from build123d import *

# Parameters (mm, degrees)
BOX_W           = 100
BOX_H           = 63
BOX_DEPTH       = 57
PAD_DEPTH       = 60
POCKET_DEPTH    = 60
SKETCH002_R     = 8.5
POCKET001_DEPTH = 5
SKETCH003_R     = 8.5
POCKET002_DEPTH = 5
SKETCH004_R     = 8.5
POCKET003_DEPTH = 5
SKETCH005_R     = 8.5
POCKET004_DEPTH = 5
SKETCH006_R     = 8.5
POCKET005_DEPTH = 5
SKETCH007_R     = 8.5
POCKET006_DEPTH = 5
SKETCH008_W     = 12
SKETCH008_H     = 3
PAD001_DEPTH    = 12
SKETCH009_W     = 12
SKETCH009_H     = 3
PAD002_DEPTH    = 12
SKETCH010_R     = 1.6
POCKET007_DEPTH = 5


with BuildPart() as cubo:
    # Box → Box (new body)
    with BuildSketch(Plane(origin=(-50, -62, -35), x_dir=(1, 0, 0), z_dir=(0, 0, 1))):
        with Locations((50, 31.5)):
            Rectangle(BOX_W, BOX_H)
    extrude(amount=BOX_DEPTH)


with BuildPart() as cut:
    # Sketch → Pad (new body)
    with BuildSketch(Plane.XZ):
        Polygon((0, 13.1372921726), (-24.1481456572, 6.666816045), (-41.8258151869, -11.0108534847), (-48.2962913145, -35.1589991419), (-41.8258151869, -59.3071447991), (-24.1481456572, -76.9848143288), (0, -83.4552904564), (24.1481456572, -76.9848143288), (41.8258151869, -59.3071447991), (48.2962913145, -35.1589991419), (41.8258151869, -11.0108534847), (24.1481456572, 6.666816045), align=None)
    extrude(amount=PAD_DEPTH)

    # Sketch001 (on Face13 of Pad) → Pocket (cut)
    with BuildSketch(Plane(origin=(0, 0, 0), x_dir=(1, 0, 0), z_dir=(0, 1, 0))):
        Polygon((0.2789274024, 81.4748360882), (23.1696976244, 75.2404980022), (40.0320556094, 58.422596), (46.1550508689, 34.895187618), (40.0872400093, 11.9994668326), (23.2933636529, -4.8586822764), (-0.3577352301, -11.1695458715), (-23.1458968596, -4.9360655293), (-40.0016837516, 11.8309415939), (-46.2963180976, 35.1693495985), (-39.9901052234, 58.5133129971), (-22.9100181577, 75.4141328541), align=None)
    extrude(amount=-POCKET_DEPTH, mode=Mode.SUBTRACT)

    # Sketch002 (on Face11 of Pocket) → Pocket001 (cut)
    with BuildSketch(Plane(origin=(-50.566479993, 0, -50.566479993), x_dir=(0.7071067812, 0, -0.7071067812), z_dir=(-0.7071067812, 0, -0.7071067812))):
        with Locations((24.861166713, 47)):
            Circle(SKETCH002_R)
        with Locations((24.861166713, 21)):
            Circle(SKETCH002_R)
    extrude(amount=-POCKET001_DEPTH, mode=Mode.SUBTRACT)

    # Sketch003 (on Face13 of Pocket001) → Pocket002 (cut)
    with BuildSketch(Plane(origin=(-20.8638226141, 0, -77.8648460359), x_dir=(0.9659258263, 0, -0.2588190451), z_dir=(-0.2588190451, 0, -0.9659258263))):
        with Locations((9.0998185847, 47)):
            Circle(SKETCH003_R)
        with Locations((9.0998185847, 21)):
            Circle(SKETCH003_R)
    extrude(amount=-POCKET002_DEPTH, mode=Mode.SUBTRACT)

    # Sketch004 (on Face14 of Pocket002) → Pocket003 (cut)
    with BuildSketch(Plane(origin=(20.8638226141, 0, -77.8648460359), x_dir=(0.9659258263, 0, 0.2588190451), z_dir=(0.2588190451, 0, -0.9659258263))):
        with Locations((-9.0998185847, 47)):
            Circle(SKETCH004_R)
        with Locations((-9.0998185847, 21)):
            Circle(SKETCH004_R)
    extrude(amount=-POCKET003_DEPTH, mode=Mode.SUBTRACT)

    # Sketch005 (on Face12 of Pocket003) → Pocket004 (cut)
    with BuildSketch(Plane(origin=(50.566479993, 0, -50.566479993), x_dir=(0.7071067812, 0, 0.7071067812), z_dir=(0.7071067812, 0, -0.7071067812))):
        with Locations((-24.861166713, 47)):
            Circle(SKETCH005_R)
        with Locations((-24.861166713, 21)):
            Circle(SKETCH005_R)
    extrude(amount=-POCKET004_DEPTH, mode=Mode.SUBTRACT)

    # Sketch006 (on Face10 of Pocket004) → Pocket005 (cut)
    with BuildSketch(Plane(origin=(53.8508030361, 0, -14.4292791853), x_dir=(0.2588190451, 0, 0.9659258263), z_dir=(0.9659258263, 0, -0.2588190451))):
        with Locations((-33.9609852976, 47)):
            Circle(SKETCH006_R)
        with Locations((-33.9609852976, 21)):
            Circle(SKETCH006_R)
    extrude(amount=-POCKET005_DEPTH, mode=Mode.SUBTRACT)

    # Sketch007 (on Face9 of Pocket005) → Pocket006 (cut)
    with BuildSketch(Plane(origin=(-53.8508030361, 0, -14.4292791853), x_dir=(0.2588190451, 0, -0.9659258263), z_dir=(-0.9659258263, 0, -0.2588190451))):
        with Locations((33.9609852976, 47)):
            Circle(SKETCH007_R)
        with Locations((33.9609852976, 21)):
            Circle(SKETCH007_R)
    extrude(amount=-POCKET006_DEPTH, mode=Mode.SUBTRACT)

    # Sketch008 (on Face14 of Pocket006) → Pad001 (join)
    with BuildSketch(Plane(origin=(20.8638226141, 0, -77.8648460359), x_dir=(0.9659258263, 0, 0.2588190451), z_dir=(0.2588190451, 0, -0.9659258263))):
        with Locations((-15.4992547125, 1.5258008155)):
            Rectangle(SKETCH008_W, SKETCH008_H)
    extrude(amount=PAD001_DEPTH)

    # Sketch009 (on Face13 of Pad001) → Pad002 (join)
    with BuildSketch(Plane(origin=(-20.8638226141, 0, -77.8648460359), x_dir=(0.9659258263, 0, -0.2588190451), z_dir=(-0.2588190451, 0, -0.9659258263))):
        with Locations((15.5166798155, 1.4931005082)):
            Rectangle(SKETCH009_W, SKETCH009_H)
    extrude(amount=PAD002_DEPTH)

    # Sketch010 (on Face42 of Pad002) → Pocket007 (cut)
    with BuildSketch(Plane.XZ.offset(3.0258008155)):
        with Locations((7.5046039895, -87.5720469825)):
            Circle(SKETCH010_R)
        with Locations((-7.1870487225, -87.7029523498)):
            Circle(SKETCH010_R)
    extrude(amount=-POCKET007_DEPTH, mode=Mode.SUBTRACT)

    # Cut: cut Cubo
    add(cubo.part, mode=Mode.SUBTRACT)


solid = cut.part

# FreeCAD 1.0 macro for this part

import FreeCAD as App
import Part
import Sketcher
from FreeCAD import Vector
Q = App.Units.Quantity


def add_polygon(sketch, points):
    """Adds a closed chain of lines whose ends are joined by coincident constraints."""
    first, n = sketch.GeometryCount, len(points)
    for a, b in zip(points, points[1:] + points[:1]):
        sketch.addGeometry(Part.LineSegment(App.Vector(*a, 0), App.Vector(*b, 0)), False)
    for i in range(n):
        sketch.addConstraint(Sketcher.Constraint("Coincident", first + i, 2, first + (i + 1) % n, 1))

doc = App.newDocument("Part")
params = doc.addObject("Spreadsheet::Sheet", "Params")
for row, (alias, value) in enumerate([
    ("sketch1_width", "100 mm"),
    ("sketch1_height", "63 mm"),
    ("pad1_length", "57 mm"),
    ("sketch2_length", "25 mm"),
    ("pad2_length", "60 mm"),
    ("pocket1_length", "60 mm"),
    ("sketch4_diameter", "17 mm"),
    ("pocket2_length", "5 mm"),
    ("sketch5_diameter", "17 mm"),
    ("pocket3_length", "5 mm"),
    ("sketch6_diameter", "17 mm"),
    ("pocket4_length", "5 mm"),
    ("sketch7_diameter", "17 mm"),
    ("pocket5_length", "5 mm"),
    ("sketch8_diameter", "17 mm"),
    ("pocket6_length", "5 mm"),
    ("sketch9_diameter", "17 mm"),
    ("pocket7_length", "5 mm"),
    ("sketch10_width", "12 mm"),
    ("sketch10_height", "3 mm"),
    ("pad3_length", "12 mm"),
    ("sketch11_width", "12 mm"),
    ("sketch11_height", "3 mm"),
    ("pad4_length", "12 mm"),
    ("sketch12_diameter", "3.2 mm"),
    ("pocket8_length", "5 mm"),
], start=1):
    params.set(f"A{row}", alias)
    params.set(f"B{row}", "=" + value)
    params.setAlias(f"B{row}", alias)

body = doc.addObject("PartDesign::Body", "Body")

sketch1 = body.newObject("Sketcher::SketchObject", "Sketch")
sketch1.AttachmentSupport = (doc.getObject("XY_Plane"), [""])
sketch1.MapMode = "FlatFace"
sketch1.AttachmentOffset = App.Placement(Vector(0, 0, -35), App.Rotation())
add_polygon(sketch1, [(-50, 1), (-50, -62), (50, -62), (50, 1)])
sketch1.addConstraint(Sketcher.Constraint("Vertical", 0))
sketch1.addConstraint(Sketcher.Constraint("Horizontal", 1))
sketch1.addConstraint(Sketcher.Constraint("Vertical", 2))
sketch1.addConstraint(Sketcher.Constraint("Horizontal", 3))
sketch1.addConstraint(Sketcher.Constraint("DistanceX", 1, 1, 1, 2, Q("100 mm")))
sketch1.addConstraint(Sketcher.Constraint("DistanceY", 0, 2, 0, 1, Q("63 mm")))
sketch1.addConstraint(Sketcher.Constraint("DistanceX", 0, 2, -1, 1, Q("50 mm")))
sketch1.addConstraint(Sketcher.Constraint("DistanceY", 0, 2, -1, 1, Q("62 mm")))
sketch1.setExpression("Constraints[8]", "Params.sketch1_width")
sketch1.setExpression("Constraints[9]", "Params.sketch1_height")
pad1 = body.newObject("PartDesign::Pad", "Pad")
pad1.Profile = sketch1
pad1.setExpression("Length", "Params.pad1_length")
body2 = doc.addObject("PartDesign::Body", "Body001")

sketch2 = body2.newObject("Sketcher::SketchObject", "Sketch001")
sketch2.AttachmentSupport = (doc.getObject("XZ_Plane001"), [""])
sketch2.MapMode = "FlatFace"
add_polygon(sketch2, [(0, 13.137292), (-24.148146, 6.666816), (-41.825815, -11.010853), (-48.296291, -35.158999), (-41.825815, -59.307145), (-24.148146, -76.984814), (0, -83.45529), (24.148146, -76.984814), (41.825815, -59.307145), (48.296291, -35.158999), (41.825815, -11.010853), (24.148146, 6.666816)])
sketch2.addConstraint(Sketcher.Constraint("Symmetric", 4, 2, 6, 2, -2))
sketch2.addConstraint(Sketcher.Constraint("Symmetric", 3, 2, 7, 2, -2))
sketch2.addConstraint(Sketcher.Constraint("Symmetric", 2, 2, 8, 2, -2))
sketch2.addConstraint(Sketcher.Constraint("Symmetric", 1, 2, 9, 2, -2))
sketch2.addConstraint(Sketcher.Constraint("Symmetric", 0, 2, 10, 2, -2))
sketch2.addConstraint(Sketcher.Constraint("PointOnObject", 5, 2, -2))
sketch2.addConstraint(Sketcher.Constraint("PointOnObject", 11, 2, -2))
sketch2.addConstraint(Sketcher.Constraint("Perpendicular", 0, 3))
sketch2.addConstraint(Sketcher.Constraint("Perpendicular", 1, 4))
sketch2.addConstraint(Sketcher.Constraint("Perpendicular", 2, 5))
sketch2.addConstraint(Sketcher.Constraint("Perpendicular", 3, 6))
sketch2.addConstraint(Sketcher.Constraint("Perpendicular", 4, 7))
sketch2.addConstraint(Sketcher.Constraint("Vertical", 1, 2, 3, 2))
sketch2.addConstraint(Sketcher.Constraint("Vertical", 0, 2, 4, 2))
sketch2.addConstraint(Sketcher.Constraint("Equal", 0, 1))
sketch2.addConstraint(Sketcher.Constraint("Equal", 1, 2))
sketch2.addConstraint(Sketcher.Constraint("Angle", 0, Q("-165 deg")))
sketch2.addConstraint(Sketcher.Constraint("Distance", 0, Q("25 mm")))
sketch2.addConstraint(Sketcher.Constraint("DistanceY", 2, 2, -1, 1, Q("35.158999 mm")))
sketch2.setExpression("Constraints[29]", "Params.sketch2_length")
pad2 = body2.newObject("PartDesign::Pad", "Pad001")
pad2.Profile = sketch2
pad2.setExpression("Length", "Params.pad2_length")

sketch3 = body2.newObject("Sketcher::SketchObject", "Sketch002")
sketch3.AttachmentSupport = (doc.getObject("XZ_Plane001"), [""])
sketch3.MapMode = "FlatFace"
add_polygon(sketch3, [(23.169698, -75.240498), (0.278927, -81.474836), (-22.910018, -75.414133), (-39.990105, -58.513313), (-46.296318, -35.16935), (-40.001684, -11.830942), (-23.145897, 4.936066), (-0.357735, 11.169546), (23.293364, 4.858682), (40.08724, -11.999467), (46.155051, -34.895188), (40.032056, -58.422596)])
sketch3.addConstraint(Sketcher.Constraint("DistanceY", 11, 2, -1, 1, Q("75.240498 mm")))
sketch3.addConstraint(Sketcher.Constraint("DistanceX", 3, 2, 1, 2, Q("23.3863 mm")))
sketch3.addConstraint(Sketcher.Constraint("DistanceY", 1, 2, 5, 2, Q("80.350198 mm")))
sketch3.addConstraint(Sketcher.Constraint("DistanceY", 0, 2, 5, 2, Q("86.410902 mm")))
sketch3.addConstraint(Sketcher.Constraint("DistanceX", 6, 2, 7, 2, Q("23.651099 mm")))
sketch3.addConstraint(Sketcher.Constraint("Distance", 0, Q("23.724551 mm")))
sketch3.addConstraint(Sketcher.Constraint("Distance", 1, Q("23.967881 mm")))
sketch3.addConstraint(Sketcher.Constraint("Distance", 5, Q("23.774989 mm")))
sketch3.addConstraint(Sketcher.Constraint("Distance", 8, Q("23.795619 mm")))
sketch3.addConstraint(Sketcher.Constraint("Distance", 9, Q("23.686122 mm")))
sketch3.addConstraint(Sketcher.Constraint("Distance", 10, Q("24.311109 mm")))
sketch3.addConstraint(Sketcher.Constraint("Distance", 11, Q("23.815561 mm")))
sketch3.addConstraint(Sketcher.Constraint("DistanceX", 1, 2, -1, 1, Q("22.910018 mm")))
sketch3.addConstraint(Sketcher.Constraint("DistanceY", 3, 2, -1, 1, Q("35.16935 mm")))
sketch3.addConstraint(Sketcher.Constraint("DistanceY", 4, 2, -1, 1, Q("11.830942 mm")))
sketch3.addConstraint(Sketcher.Constraint("DistanceX", -1, 1, 8, 2, Q("40.08724 mm")))
sketch3.addConstraint(Sketcher.Constraint("DistanceX", -1, 1, 9, 2, Q("46.155051 mm")))
sketch3.addConstraint(Sketcher.Constraint("DistanceY", 1, 2, 2, 2, Q("16.90082 mm")))
sketch3.addConstraint(Sketcher.Constraint("DistanceX", 4, 2, 2, 2, Q("0.011579 mm")))
sketch3.addConstraint(Sketcher.Constraint("DistanceY", 2, 2, 4, 2, Q("46.682371 mm")))
sketch3.addConstraint(Sketcher.Constraint("DistanceX", 4, 2, 0, 2, Q("40.280611 mm")))
sketch3.addConstraint(Sketcher.Constraint("DistanceX", 5, 2, 6, 2, Q("22.788162 mm")))
sketch3.addConstraint(Sketcher.Constraint("DistanceY", 5, 2, 6, 2, Q("6.23348 mm")))
sketch3.addConstraint(Sketcher.Constraint("DistanceY", 3, 2, 7, 2, Q("40.028032 mm")))
pocket1 = body2.newObject("PartDesign::Pocket", "Pocket")
pocket1.Profile = sketch3
pocket1.setExpression("Length", "Params.pocket1_length")
pocket1.Reversed = True

sketch4 = body2.newObject("Sketcher::SketchObject", "Sketch003")
sketch4.Placement = App.Placement(Vector(-50.56648, 0, -50.56648), App.Rotation(Vector(0.707106781, 0, -0.707106781), Vector(0, -0.999999999, 0), Vector(-0.707106781, 0, -0.707106781), "ZXY"))
sketch4.addGeometry(Part.Circle(Vector(24.861167, 47, 0), Vector(0, 0, 1), 8.5), False)
sketch4.addGeometry(Part.Circle(Vector(24.861167, 21, 0), Vector(0, 0, 1), 8.5), False)
sketch4.addConstraint(Sketcher.Constraint("Equal", 0, 1))
sketch4.addConstraint(Sketcher.Constraint("Vertical", 0, 3, 1, 3))
sketch4.addConstraint(Sketcher.Constraint("Diameter", 0, Q("17 mm")))
sketch4.addConstraint(Sketcher.Constraint("DistanceY", -1, 1, 0, 3, Q("47 mm")))
sketch4.addConstraint(Sketcher.Constraint("DistanceY", -1, 1, 1, 3, Q("21 mm")))
sketch4.addConstraint(Sketcher.Constraint("DistanceX", -1, 1, 0, 3, Q("24.861167 mm")))
sketch4.setExpression("Constraints[2]", "Params.sketch4_diameter")
pocket2 = body2.newObject("PartDesign::Pocket", "Pocket001")
pocket2.Profile = sketch4
pocket2.setExpression("Length", "Params.pocket2_length")

sketch5 = body2.newObject("Sketcher::SketchObject", "Sketch004")
sketch5.Placement = App.Placement(Vector(-20.863823, 0, -77.864846), App.Rotation(Vector(0.965925826, 0, -0.258819045), Vector(0, -0.999999999, 0), Vector(-0.258819045, 0, -0.965925826), "ZXY"))
sketch5.addGeometry(Part.Circle(Vector(9.099819, 47, 0), Vector(0, 0, 1), 8.5), False)
sketch5.addGeometry(Part.Circle(Vector(9.099819, 21, 0), Vector(0, 0, 1), 8.5), False)
sketch5.addConstraint(Sketcher.Constraint("Equal", 0, 1))
sketch5.addConstraint(Sketcher.Constraint("Vertical", 0, 3, 1, 3))
sketch5.addConstraint(Sketcher.Constraint("Diameter", 0, Q("17 mm")))
sketch5.addConstraint(Sketcher.Constraint("DistanceY", -1, 1, 0, 3, Q("47 mm")))
sketch5.addConstraint(Sketcher.Constraint("DistanceY", -1, 1, 1, 3, Q("21 mm")))
sketch5.addConstraint(Sketcher.Constraint("DistanceX", -1, 1, 0, 3, Q("9.099819 mm")))
sketch5.setExpression("Constraints[2]", "Params.sketch5_diameter")
pocket3 = body2.newObject("PartDesign::Pocket", "Pocket002")
pocket3.Profile = sketch5
pocket3.setExpression("Length", "Params.pocket3_length")

sketch6 = body2.newObject("Sketcher::SketchObject", "Sketch005")
sketch6.Placement = App.Placement(Vector(20.863823, 0, -77.864846), App.Rotation(Vector(0.965925826, 0, 0.258819045), Vector(0, -0.999999999, 0), Vector(0.258819045, 0, -0.965925826), "ZXY"))
sketch6.addGeometry(Part.Circle(Vector(-9.099819, 47, 0), Vector(0, 0, 1), 8.5), False)
sketch6.addGeometry(Part.Circle(Vector(-9.099819, 21, 0), Vector(0, 0, 1), 8.5), False)
sketch6.addConstraint(Sketcher.Constraint("Equal", 0, 1))
sketch6.addConstraint(Sketcher.Constraint("Vertical", 0, 3, 1, 3))
sketch6.addConstraint(Sketcher.Constraint("Diameter", 0, Q("17 mm")))
sketch6.addConstraint(Sketcher.Constraint("DistanceY", -1, 1, 0, 3, Q("47 mm")))
sketch6.addConstraint(Sketcher.Constraint("DistanceY", -1, 1, 1, 3, Q("21 mm")))
sketch6.addConstraint(Sketcher.Constraint("DistanceX", 0, 3, -1, 1, Q("9.099819 mm")))
sketch6.setExpression("Constraints[2]", "Params.sketch6_diameter")
pocket4 = body2.newObject("PartDesign::Pocket", "Pocket003")
pocket4.Profile = sketch6
pocket4.setExpression("Length", "Params.pocket4_length")

sketch7 = body2.newObject("Sketcher::SketchObject", "Sketch006")
sketch7.Placement = App.Placement(Vector(50.56648, 0, -50.56648), App.Rotation(Vector(0.707106781, 0, 0.707106781), Vector(0, -0.999999999, 0), Vector(0.707106781, 0, -0.707106781), "ZXY"))
sketch7.addGeometry(Part.Circle(Vector(-24.861167, 47, 0), Vector(0, 0, 1), 8.5), False)
sketch7.addGeometry(Part.Circle(Vector(-24.861167, 21, 0), Vector(0, 0, 1), 8.5), False)
sketch7.addConstraint(Sketcher.Constraint("Equal", 0, 1))
sketch7.addConstraint(Sketcher.Constraint("Vertical", 0, 3, 1, 3))
sketch7.addConstraint(Sketcher.Constraint("Diameter", 0, Q("17 mm")))
sketch7.addConstraint(Sketcher.Constraint("DistanceY", -1, 1, 0, 3, Q("47 mm")))
sketch7.addConstraint(Sketcher.Constraint("DistanceY", -1, 1, 1, 3, Q("21 mm")))
sketch7.addConstraint(Sketcher.Constraint("DistanceX", 0, 3, -1, 1, Q("24.861167 mm")))
sketch7.setExpression("Constraints[2]", "Params.sketch7_diameter")
pocket5 = body2.newObject("PartDesign::Pocket", "Pocket004")
pocket5.Profile = sketch7
pocket5.setExpression("Length", "Params.pocket5_length")

sketch8 = body2.newObject("Sketcher::SketchObject", "Sketch007")
sketch8.Placement = App.Placement(Vector(53.850803, 0, -14.429279), App.Rotation(Vector(0.258819045, 0, 0.965925826), Vector(0, -0.999999999, 0), Vector(0.965925826, 0, -0.258819045), "ZXY"))
sketch8.addGeometry(Part.Circle(Vector(-33.960985, 47, 0), Vector(0, 0, 1), 8.5), False)
sketch8.addGeometry(Part.Circle(Vector(-33.960985, 21, 0), Vector(0, 0, 1), 8.5), False)
sketch8.addConstraint(Sketcher.Constraint("Equal", 0, 1))
sketch8.addConstraint(Sketcher.Constraint("Vertical", 0, 3, 1, 3))
sketch8.addConstraint(Sketcher.Constraint("Diameter", 0, Q("17 mm")))
sketch8.addConstraint(Sketcher.Constraint("DistanceY", -1, 1, 0, 3, Q("47 mm")))
sketch8.addConstraint(Sketcher.Constraint("DistanceY", -1, 1, 1, 3, Q("21 mm")))
sketch8.addConstraint(Sketcher.Constraint("DistanceX", 0, 3, -1, 1, Q("33.960985 mm")))
sketch8.setExpression("Constraints[2]", "Params.sketch8_diameter")
pocket6 = body2.newObject("PartDesign::Pocket", "Pocket005")
pocket6.Profile = sketch8
pocket6.setExpression("Length", "Params.pocket6_length")

sketch9 = body2.newObject("Sketcher::SketchObject", "Sketch008")
sketch9.Placement = App.Placement(Vector(-53.850803, 0, -14.429279), App.Rotation(Vector(0.258819045, 0, -0.965925826), Vector(0, -0.999999999, 0), Vector(-0.965925826, 0, -0.258819045), "ZXY"))
sketch9.addGeometry(Part.Circle(Vector(33.960985, 47, 0), Vector(0, 0, 1), 8.5), False)
sketch9.addGeometry(Part.Circle(Vector(33.960985, 21, 0), Vector(0, 0, 1), 8.5), False)
sketch9.addConstraint(Sketcher.Constraint("Equal", 0, 1))
sketch9.addConstraint(Sketcher.Constraint("Vertical", 0, 3, 1, 3))
sketch9.addConstraint(Sketcher.Constraint("Diameter", 0, Q("17 mm")))
sketch9.addConstraint(Sketcher.Constraint("DistanceY", -1, 1, 0, 3, Q("47 mm")))
sketch9.addConstraint(Sketcher.Constraint("DistanceY", -1, 1, 1, 3, Q("21 mm")))
sketch9.addConstraint(Sketcher.Constraint("DistanceX", -1, 1, 0, 3, Q("33.960985 mm")))
sketch9.setExpression("Constraints[2]", "Params.sketch9_diameter")
pocket7 = body2.newObject("PartDesign::Pocket", "Pocket006")
pocket7.Profile = sketch9
pocket7.setExpression("Length", "Params.pocket7_length")

sketch10 = body2.newObject("Sketcher::SketchObject", "Sketch009")
sketch10.Placement = App.Placement(Vector(20.863823, 0, -77.864846), App.Rotation(Vector(0.965925826, 0, 0.258819045), Vector(0, -0.999999999, 0), Vector(0.258819045, 0, -0.965925826), "ZXY"))
add_polygon(sketch10, [(-21.499255, 3.025801), (-21.499255, 0.025801), (-9.499255, 0.025801), (-9.499255, 3.025801)])
sketch10.addConstraint(Sketcher.Constraint("Vertical", 0))
sketch10.addConstraint(Sketcher.Constraint("Horizontal", 1))
sketch10.addConstraint(Sketcher.Constraint("Vertical", 2))
sketch10.addConstraint(Sketcher.Constraint("Horizontal", 3))
sketch10.addConstraint(Sketcher.Constraint("DistanceX", 1, 1, 1, 2, Q("12 mm")))
sketch10.addConstraint(Sketcher.Constraint("DistanceY", 0, 2, 0, 1, Q("3 mm")))
sketch10.addConstraint(Sketcher.Constraint("DistanceY", -1, 1, 0, 2, Q("0.025801 mm")))
sketch10.addConstraint(Sketcher.Constraint("DistanceX", 0, 2, -1, 1, Q("21.499255 mm")))
sketch10.setExpression("Constraints[8]", "Params.sketch10_width")
sketch10.setExpression("Constraints[9]", "Params.sketch10_height")
pad3 = body2.newObject("PartDesign::Pad", "Pad002")
pad3.Profile = sketch10
pad3.setExpression("Length", "Params.pad3_length")

sketch11 = body2.newObject("Sketcher::SketchObject", "Sketch010")
sketch11.Placement = App.Placement(Vector(-20.863823, 0, -77.864846), App.Rotation(Vector(0.965925826, 0, -0.258819045), Vector(0, -0.999999999, 0), Vector(-0.258819045, 0, -0.965925826), "ZXY"))
add_polygon(sketch11, [(9.51668, 2.993101), (9.51668, -0.006899), (21.51668, -0.006899), (21.51668, 2.993101)])
sketch11.addConstraint(Sketcher.Constraint("Vertical", 0))
sketch11.addConstraint(Sketcher.Constraint("Horizontal", 1))
sketch11.addConstraint(Sketcher.Constraint("Vertical", 2))
sketch11.addConstraint(Sketcher.Constraint("Horizontal", 3))
sketch11.addConstraint(Sketcher.Constraint("DistanceX", 1, 1, 1, 2, Q("12 mm")))
sketch11.addConstraint(Sketcher.Constraint("DistanceY", 0, 2, 0, 1, Q("3 mm")))
sketch11.addConstraint(Sketcher.Constraint("DistanceY", 0, 2, -1, 1, Q("0.006899 mm")))
sketch11.addConstraint(Sketcher.Constraint("DistanceX", -1, 1, 0, 2, Q("9.51668 mm")))
sketch11.setExpression("Constraints[8]", "Params.sketch11_width")
sketch11.setExpression("Constraints[9]", "Params.sketch11_height")
pad4 = body2.newObject("PartDesign::Pad", "Pad003")
pad4.Profile = sketch11
pad4.setExpression("Length", "Params.pad4_length")

sketch12 = body2.newObject("Sketcher::SketchObject", "Sketch011")
sketch12.AttachmentSupport = (doc.getObject("XZ_Plane001"), [""])
sketch12.MapMode = "FlatFace"
sketch12.AttachmentOffset = App.Placement(Vector(0, 0, 3.025801), App.Rotation())
sketch12.addGeometry(Part.Circle(Vector(7.504604, -87.572047, 0), Vector(0, 0, 1), 1.6), False)
sketch12.addGeometry(Part.Circle(Vector(-7.187049, -87.702952, 0), Vector(0, 0, 1), 1.6), False)
sketch12.addConstraint(Sketcher.Constraint("Equal", 0, 1))
sketch12.addConstraint(Sketcher.Constraint("Diameter", 0, Q("3.2 mm")))
sketch12.addConstraint(Sketcher.Constraint("DistanceX", 1, 3, -1, 1, Q("7.187049 mm")))
sketch12.addConstraint(Sketcher.Constraint("DistanceX", -1, 1, 0, 3, Q("7.504604 mm")))
sketch12.addConstraint(Sketcher.Constraint("DistanceY", 0, 3, -1, 1, Q("87.572047 mm")))
sketch12.addConstraint(Sketcher.Constraint("DistanceY", 1, 3, -1, 1, Q("87.702952 mm")))
sketch12.setExpression("Constraints[1]", "Params.sketch12_diameter")
pocket8 = body2.newObject("PartDesign::Pocket", "Pocket007")
pocket8.Profile = sketch12
pocket8.setExpression("Length", "Params.pocket8_length")
doc.recompute()

boolean = body2.newObject("PartDesign::Boolean", "Boolean")
boolean.Type = "Cut"
boolean.addObjects([body])

doc.recompute()
